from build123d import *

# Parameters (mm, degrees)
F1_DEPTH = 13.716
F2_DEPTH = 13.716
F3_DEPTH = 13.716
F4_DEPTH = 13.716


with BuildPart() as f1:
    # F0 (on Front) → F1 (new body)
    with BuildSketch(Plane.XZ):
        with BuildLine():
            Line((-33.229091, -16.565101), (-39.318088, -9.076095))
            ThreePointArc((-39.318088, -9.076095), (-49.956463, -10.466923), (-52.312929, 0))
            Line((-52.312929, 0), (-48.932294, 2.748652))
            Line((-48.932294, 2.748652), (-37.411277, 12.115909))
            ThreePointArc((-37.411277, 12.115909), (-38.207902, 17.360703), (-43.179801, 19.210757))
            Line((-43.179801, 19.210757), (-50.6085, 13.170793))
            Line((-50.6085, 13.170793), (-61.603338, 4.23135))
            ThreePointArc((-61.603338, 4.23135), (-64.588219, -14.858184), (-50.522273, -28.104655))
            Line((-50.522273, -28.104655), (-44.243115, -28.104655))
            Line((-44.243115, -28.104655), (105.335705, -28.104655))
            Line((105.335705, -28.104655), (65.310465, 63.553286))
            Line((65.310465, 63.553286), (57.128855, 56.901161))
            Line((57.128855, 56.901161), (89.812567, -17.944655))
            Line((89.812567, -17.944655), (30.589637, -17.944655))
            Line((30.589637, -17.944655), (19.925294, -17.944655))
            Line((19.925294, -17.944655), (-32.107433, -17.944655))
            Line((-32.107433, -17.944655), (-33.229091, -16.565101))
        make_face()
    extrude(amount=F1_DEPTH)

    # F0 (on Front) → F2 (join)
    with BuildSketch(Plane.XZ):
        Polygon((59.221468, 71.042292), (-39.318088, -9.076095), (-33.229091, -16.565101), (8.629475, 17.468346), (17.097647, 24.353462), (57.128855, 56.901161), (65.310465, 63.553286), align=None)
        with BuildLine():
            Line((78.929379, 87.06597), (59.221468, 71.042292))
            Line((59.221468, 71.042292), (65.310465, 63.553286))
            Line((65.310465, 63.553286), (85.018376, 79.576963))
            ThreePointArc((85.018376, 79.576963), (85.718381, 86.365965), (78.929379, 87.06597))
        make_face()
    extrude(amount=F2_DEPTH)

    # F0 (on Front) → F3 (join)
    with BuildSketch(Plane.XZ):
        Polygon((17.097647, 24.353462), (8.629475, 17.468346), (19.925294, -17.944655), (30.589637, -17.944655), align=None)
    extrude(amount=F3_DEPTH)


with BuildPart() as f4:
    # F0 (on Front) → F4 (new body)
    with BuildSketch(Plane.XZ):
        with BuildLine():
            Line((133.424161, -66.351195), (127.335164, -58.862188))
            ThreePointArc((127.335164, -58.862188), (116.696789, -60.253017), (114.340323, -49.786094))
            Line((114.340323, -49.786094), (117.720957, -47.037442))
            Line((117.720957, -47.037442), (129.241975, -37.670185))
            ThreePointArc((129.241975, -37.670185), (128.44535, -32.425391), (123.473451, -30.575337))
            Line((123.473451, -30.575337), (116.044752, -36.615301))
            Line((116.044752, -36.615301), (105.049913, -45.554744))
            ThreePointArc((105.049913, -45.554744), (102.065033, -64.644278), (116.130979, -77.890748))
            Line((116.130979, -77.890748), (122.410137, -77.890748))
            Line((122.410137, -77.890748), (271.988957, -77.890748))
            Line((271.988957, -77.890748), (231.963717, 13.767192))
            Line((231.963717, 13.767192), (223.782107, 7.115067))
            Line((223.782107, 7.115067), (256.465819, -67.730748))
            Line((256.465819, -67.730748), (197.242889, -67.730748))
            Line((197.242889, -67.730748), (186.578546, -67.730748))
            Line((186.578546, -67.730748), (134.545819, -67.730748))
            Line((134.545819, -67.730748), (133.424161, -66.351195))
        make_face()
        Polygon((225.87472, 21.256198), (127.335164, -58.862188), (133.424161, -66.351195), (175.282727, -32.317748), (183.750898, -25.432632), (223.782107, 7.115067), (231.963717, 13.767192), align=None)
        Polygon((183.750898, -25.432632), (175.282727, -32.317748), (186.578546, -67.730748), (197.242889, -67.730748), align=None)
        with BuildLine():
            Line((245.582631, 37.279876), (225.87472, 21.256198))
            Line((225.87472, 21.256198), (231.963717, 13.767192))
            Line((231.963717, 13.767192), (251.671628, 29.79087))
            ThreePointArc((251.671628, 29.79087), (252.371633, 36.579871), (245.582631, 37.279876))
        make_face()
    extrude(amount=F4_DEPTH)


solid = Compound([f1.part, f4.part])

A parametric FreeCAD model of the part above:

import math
import FreeCAD as App
import Part
import Sketcher

V = App.Vector
Q = App.Units.Quantity

doc = App.newDocument("Part")
body = doc.addObject("PartDesign::Body", "Body")

# Sketch on XZ plane
sketch1 = doc.addObject("Sketcher::SketchObject", "Sketch")
body.addObject(sketch1)
sketch1.AttachmentSupport = (doc.XZ_Plane, [""])
sketch1.MapMode = "FlatFace"
sketch1.addGeometry([
    Part.LineSegment(V(-33.229091, -16.565101, 0), V(-39.318088, -9.076095, 0)),  # 0
    Part.ArcOfCircle(Part.Circle(V(-45.399376, -3.942243, 0), V(0, 0, 1), 7.958549), math.radians(150.30737), math.radians(319.828782)),  # 1
    Part.LineSegment(V(-52.312929, 0, 0), V(-48.932294, 2.748652, 0)),  # 2
    Part.LineSegment(V(-48.932294, 2.748652, 0), V(-37.411277, 12.115909, 0)),  # 3
    Part.ArcOfCircle(Part.Circle(V(-42.265707, 14.061472, 0), V(0, 0, 1), 5.22979), math.radians(-21.839974), math.radians(100.066208)),  # 4
    Part.LineSegment(V(-43.179801, 19.210757, 0), V(-50.6085, 13.170793, 0)),  # 5
    Part.LineSegment(V(-50.6085, 13.170793, 0), V(-61.603338, 4.23135, 0)),  # 6
    Part.ArcOfCircle(Part.Circle(V(-44.994625, -8.143753, 0), V(0, 0, 1), 20.712134), math.radians(143.310314), math.radians(254.521326)),  # 7
    Part.LineSegment(V(-50.522273, -28.104655, 0), V(105.335705, -28.104655, 0)),  # 8
    Part.LineSegment(V(105.335705, -28.104655, 0), V(65.310465, 63.553286, 0)),  # 9
    Part.LineSegment(V(65.310465, 63.553286, 0), V(57.128855, 56.901161, 0)),  # 10
    Part.LineSegment(V(57.128855, 56.901161, 0), V(89.812567, -17.944655, 0)),  # 11
    Part.LineSegment(V(89.812567, -17.944655, 0), V(-32.107433, -17.944655, 0)),  # 12
    Part.LineSegment(V(-32.107433, -17.944655, 0), V(-33.229091, -16.565101, 0)),  # 13
], False)
sketch1.addConstraint([
    Sketcher.Constraint("Coincident", 0, 2, 1, 2),
    Sketcher.Constraint("Coincident", 1, 1, 2, 1),
    Sketcher.Constraint("Coincident", 2, 2, 3, 1),
    Sketcher.Constraint("Coincident", 3, 2, 4, 1),
    Sketcher.Constraint("Coincident", 4, 2, 5, 1),
    Sketcher.Constraint("Coincident", 5, 2, 6, 1),
    Sketcher.Constraint("Coincident", 6, 2, 7, 1),
    Sketcher.Constraint("Coincident", 7, 2, 8, 1),
    Sketcher.Constraint("Coincident", 8, 2, 9, 1),
    Sketcher.Constraint("Coincident", 9, 2, 10, 1),
    Sketcher.Constraint("Coincident", 10, 2, 11, 1),
    Sketcher.Constraint("Coincident", 11, 2, 12, 1),
    Sketcher.Constraint("Coincident", 12, 2, 13, 1),
    Sketcher.Constraint("Coincident", 13, 2, 0, 1),
    Sketcher.Constraint("Horizontal", 8),
    Sketcher.Constraint("Horizontal", 12),
    Sketcher.Constraint("PointOnObject", 1, 1, -1),
    Sketcher.Constraint("Perpendicular", 0, 2),
    Sketcher.Constraint("Parallel", 2, 3),
    Sketcher.Constraint("Parallel", 3, 5),
    Sketcher.Constraint("Parallel", 5, 6),
    Sketcher.Constraint("Parallel", 6, 10),
    Sketcher.Constraint("Parallel", 9, 11),
    Sketcher.Constraint("Perpendicular", 10, 13),
    Sketcher.Constraint("DistanceX", 12, 2, 12, 1, Q("4.8 in")),
    Sketcher.Constraint("DistanceY", 8, 2, 11, 2, Q("0.4 in")),
    Sketcher.Constraint("Distance", 0, Q("0.38 in")),
    Sketcher.Constraint("Distance", 13, Q("0.07 in")),
    Sketcher.Constraint("Radius", 1, Q("7.958549 mm")),
    Sketcher.Constraint("Radius", 4, Q("5.22979 mm")),
    Sketcher.Constraint("Radius", 7, Q("20.712134 mm")),
    Sketcher.Constraint("DistanceX", 8, 1, 8, 2, Q("155.857978 mm")),
    Sketcher.Constraint("DistanceX", 4, 2, -1, 1, Q("43.179801 mm")),
    Sketcher.Constraint("DistanceX", 5, 2, -1, 1, Q("50.6085 mm")),
    Sketcher.Constraint("DistanceY", 13, 2, -1, 1, Q("16.565101 mm")),
    Sketcher.Constraint("DistanceX", 1, 3, 3, 2, Q("7.988099 mm")),
    Sketcher.Constraint("DistanceY", 1, 3, 4, 2, Q("23.153 mm")),
    Sketcher.Constraint("DistanceY", 2, 2, 6, 2, Q("1.482698 mm")),
    Sketcher.Constraint("Distance", 2, Q("4.357038 mm")),
    Sketcher.Constraint("Distance", 9, Q("100.015989 mm")),
    Sketcher.Constraint("Distance", 11, Q("81.67081 mm")),
    Sketcher.Constraint("DistanceX", 0, 2, -1, 1, Q("39.318088 mm")),
    Sketcher.Constraint("DistanceX", 1, 1, -1, 1, Q("52.312929 mm")),
    Sketcher.Constraint("DistanceY", -1, 1, 2, 2, Q("2.748652 mm")),
    Sketcher.Constraint("DistanceY", -1, 1, 10, 2, Q("56.901161 mm")),
])
pad1 = doc.addObject("PartDesign::Pad", "Pad")
body.addObject(pad1)
pad1.Profile = sketch1
pad1.Length = Q("0.54 in")

# Sketch on XZ plane
sketch2 = doc.addObject("Sketcher::SketchObject", "Sketch001")
body.addObject(sketch2)
sketch2.AttachmentSupport = (doc.XZ_Plane, [""])
sketch2.MapMode = "FlatFace"
sketch2.addGeometry([
    Part.LineSegment(V(59.221468, 71.042292, 0), V(-39.318088, -9.076095, 0)),  # 0
    Part.LineSegment(V(-39.318088, -9.076095, 0), V(-33.229091, -16.565101, 0)),  # 1
    Part.LineSegment(V(-33.229091, -16.565101, 0), V(8.629475, 17.468346, 0)),  # 2
    Part.LineSegment(V(8.629475, 17.468346, 0), V(17.097647, 24.353462, 0)),  # 3
    Part.LineSegment(V(17.097647, 24.353462, 0), V(57.128855, 56.901161, 0)),  # 4
    Part.LineSegment(V(57.128855, 56.901161, 0), V(65.310465, 63.553286, 0)),  # 5
    Part.LineSegment(V(65.310465, 63.553286, 0), V(85.018376, 79.576963, 0)),  # 6
    Part.ArcOfCircle(Part.Circle(V(81.973878, 83.321466, 0), V(0, 0, 1), 4.826), math.radians(-50.886889), math.radians(129.113111)),  # 7
    Part.LineSegment(V(78.929379, 87.06597, 0), V(59.221468, 71.042292, 0)),  # 8
], False)
sketch2.addConstraint([
    Sketcher.Constraint("Coincident", 0, 2, 1, 1),
    Sketcher.Constraint("Coincident", 1, 2, 2, 1),
    Sketcher.Constraint("Coincident", 2, 2, 3, 1),
    Sketcher.Constraint("Coincident", 3, 2, 4, 1),
    Sketcher.Constraint("Coincident", 4, 2, 5, 1),
    Sketcher.Constraint("Coincident", 5, 2, 6, 1),
    Sketcher.Constraint("Tangent", 6, 2, 7, 1),
    Sketcher.Constraint("Tangent", 7, 2, 8, 1),
    Sketcher.Constraint("Coincident", 8, 2, 0, 1),
    Sketcher.Constraint("Perpendicular", 0, 1),
    Sketcher.Constraint("Perpendicular", 1, 2),
    Sketcher.Constraint("Parallel", 2, 3),
    Sketcher.Constraint("Parallel", 3, 4),
    Sketcher.Constraint("Parallel", 4, 5),
    Sketcher.Constraint("Parallel", 5, 6),
    Sketcher.Constraint("Parallel", 6, 8),
    Sketcher.Constraint("Equal", 6, 8),
    Sketcher.Constraint("Radius", 7, Q("0.19 in")),
    Sketcher.Constraint("Distance", 0, Q("5 in")),
    Sketcher.Constraint("Distance", 6, Q("1 in")),
    Sketcher.Constraint("DistanceY", 3, 2, 5, 2, Q("1.5433002 in")),
    Sketcher.Constraint("DistanceY", 1, 2, -1, 1, Q("16.565101 mm")),
    Sketcher.Constraint("DistanceY", 3, 2, 4, 2, Q("32.547699 mm")),
    Sketcher.Constraint("DistanceX", 7, 3, 6, 2, Q("3.044499 mm")),
    Sketcher.Constraint("DistanceX", 2, 2, 6, 2, Q("76.388901 mm")),
    Sketcher.Constraint("DistanceX", 0, 2, -1, 1, Q("39.318088 mm")),
])
pad2 = doc.addObject("PartDesign::Pad", "Pad001")
body.addObject(pad2)
pad2.Profile = sketch2
pad2.Length = Q("0.54 in")

# Sketch on XZ plane
sketch3 = doc.addObject("Sketcher::SketchObject", "Sketch002")
body.addObject(sketch3)
sketch3.AttachmentSupport = (doc.XZ_Plane, [""])
sketch3.MapMode = "FlatFace"
sketch3.addGeometry([
    Part.LineSegment(V(17.097647, 24.353462, 0), V(8.629475, 17.468346, 0)),
    Part.LineSegment(V(8.629475, 17.468346, 0), V(19.925294, -17.944655, 0)),
    Part.LineSegment(V(19.925294, -17.944655, 0), V(30.589637, -17.944655, 0)),
    Part.LineSegment(V(30.589637, -17.944655, 0), V(17.097647, 24.353462, 0)),
], False)
sketch3.addConstraint([
    Sketcher.Constraint("Coincident", 0, 2, 1, 1),
    Sketcher.Constraint("Coincident", 1, 2, 2, 1),
    Sketcher.Constraint("Coincident", 2, 2, 3, 1),
    Sketcher.Constraint("Coincident", 3, 2, 0, 1),
    Sketcher.Constraint("Horizontal", 2),
    Sketcher.Constraint("Parallel", 1, 3),
    Sketcher.Constraint("Distance", 3, Q("44.397798 mm")),
    Sketcher.Constraint("DistanceY", 1, 2, 0, 2, Q("35.413001 mm")),
    Sketcher.Constraint("Distance", 0, Q("10.913971 mm")),
    Sketcher.Constraint("DistanceX", 2, 1, 2, 2, Q("10.664343 mm")),
    Sketcher.Constraint("DistanceX", -1, 1, 0, 2, Q("8.629475 mm")),
    Sketcher.Constraint("DistanceY", -1, 1, 0, 2, Q("17.468346 mm")),
])
pad3 = doc.addObject("PartDesign::Pad", "Pad002")
body.addObject(pad3)
pad3.Profile = sketch3
pad3.Length = Q("0.54 in")
body2 = doc.addObject("PartDesign::Body", "Body001")

# Sketch on XZ plane
sketch4 = doc.addObject("Sketcher::SketchObject", "Sketch003")
body2.addObject(sketch4)
sketch4.AttachmentSupport = (doc.getObject("XZ_Plane001"), [""])
sketch4.MapMode = "FlatFace"
sketch4.addGeometry([
    Part.ArcOfCircle(Part.Circle(V(121.253876, -53.728337, 0), V(0, 0, 1), 7.958548), math.radians(150.307367), math.radians(319.82879)),  # 0
    Part.LineSegment(V(114.340323, -49.786094, 0), V(117.720957, -47.037442, 0)),  # 1
    Part.LineSegment(V(117.720957, -47.037442, 0), V(129.241975, -37.670185, 0)),  # 2
    Part.ArcOfCircle(Part.Circle(V(124.387545, -35.724622, 0), V(0, 0, 1), 5.22979), math.radians(-21.839974), math.radians(100.066208)),  # 3
    Part.LineSegment(V(123.473451, -30.575337, 0), V(116.044752, -36.615301, 0)),  # 4
    Part.LineSegment(V(116.044752, -36.615301, 0), V(105.049913, -45.554744, 0)),  # 5
    Part.ArcOfCircle(Part.Circle(V(121.658626, -57.929846, 0), V(0, 0, 1), 20.712134), math.radians(143.310317), math.radians(254.521327)),  # 6
    Part.LineSegment(V(116.130979, -77.890748, 0), V(271.988957, -77.890748, 0)),  # 7
    Part.LineSegment(V(271.988957, -77.890748, 0), V(231.963717, 13.767192, 0)),  # 8
    Part.LineSegment(V(231.963717, 13.767192, 0), V(251.671628, 29.79087, 0)),  # 9
    Part.ArcOfCircle(Part.Circle(V(248.62713, 33.535373, 0), V(0, 0, 1), 4.826), math.radians(-50.886886), math.radians(129.113116)),  # 10
    Part.LineSegment(V(245.582631, 37.279876, 0), V(225.87472, 21.256198, 0)),  # 11
    Part.LineSegment(V(225.87472, 21.256198, 0), V(127.335164, -58.862188, 0)),  # 12
    Part.LineSegment(V(223.782107, 7.115067, 0), V(256.465819, -67.730748, 0)),  # 13
    Part.LineSegment(V(256.465819, -67.730748, 0), V(197.242889, -67.730748, 0)),  # 14
    Part.LineSegment(V(197.242889, -67.730748, 0), V(183.750898, -25.432632, 0)),  # 15
    Part.LineSegment(V(183.750898, -25.432632, 0), V(223.782107, 7.115067, 0)),  # 16
    Part.LineSegment(V(186.578546, -67.730748, 0), V(134.545819, -67.730748, 0)),  # 17
    Part.LineSegment(V(134.545819, -67.730748, 0), V(133.424161, -66.351195, 0)),  # 18
    Part.LineSegment(V(133.424161, -66.351195, 0), V(175.282727, -32.317748, 0)),  # 19
    Part.LineSegment(V(175.282727, -32.317748, 0), V(186.578546, -67.730748, 0)),  # 20
], False)
sketch4.addConstraint([
    Sketcher.Constraint("Coincident", 0, 1, 1, 1),
    Sketcher.Constraint("Coincident", 1, 2, 2, 1),
    Sketcher.Constraint("Coincident", 2, 2, 3, 1),
    Sketcher.Constraint("Coincident", 3, 2, 4, 1),
    Sketcher.Constraint("Coincident", 4, 2, 5, 1),
    Sketcher.Constraint("Coincident", 5, 2, 6, 1),
    Sketcher.Constraint("Coincident", 6, 2, 7, 1),
    Sketcher.Constraint("Coincident", 7, 2, 8, 1),
    Sketcher.Constraint("Coincident", 8, 2, 9, 1),
    Sketcher.Constraint("Coincident", 9, 2, 10, 1),
    Sketcher.Constraint("Coincident", 10, 2, 11, 1),
    Sketcher.Constraint("Coincident", 11, 2, 12, 1),
    Sketcher.Constraint("Coincident", 12, 2, 0, 2),
    Sketcher.Constraint("Coincident", 13, 2, 14, 1),
    Sketcher.Constraint("Coincident", 14, 2, 15, 1),
    Sketcher.Constraint("Coincident", 15, 2, 16, 1),
    Sketcher.Constraint("Coincident", 16, 2, 13, 1),
    Sketcher.Constraint("Coincident", 17, 2, 18, 1),
    Sketcher.Constraint("Coincident", 18, 2, 19, 1),
    Sketcher.Constraint("Coincident", 19, 2, 20, 1),
    Sketcher.Constraint("Coincident", 20, 2, 17, 1),
    Sketcher.Constraint("Horizontal", 7),
    Sketcher.Constraint("Horizontal", 14),
    Sketcher.Constraint("Horizontal", 17),
    Sketcher.Constraint("Radius", 10, Q("0.19 in")),
    Sketcher.Constraint("Distance", 9, Q("1 in")),
    Sketcher.Constraint("Distance", 11, Q("1 in")),
    Sketcher.Constraint("Distance", 12, Q("5 in")),
    Sketcher.Constraint("DistanceY", 7, 2, 13, 2, Q("0.4 in")),
    Sketcher.Constraint("DistanceY", 6, 2, 17, 2, Q("0.4 in")),
    Sketcher.Constraint("Distance", 18, Q("0.07 in")),
    Sketcher.Constraint("Radius", 0, Q("7.958548 mm")),
    Sketcher.Constraint("Radius", 3, Q("5.22979 mm")),
    Sketcher.Constraint("Radius", 6, Q("20.712134 mm")),
    Sketcher.Constraint("DistanceY", 15, 2, 8, 2, Q("1.5433002 in")),
    Sketcher.Constraint("DistanceX", 7, 1, 7, 2, Q("155.857978 mm")),
    Sketcher.Constraint("DistanceX", 14, 2, 14, 1, Q("59.22293 mm")),
    Sketcher.Constraint("DistanceY", 4, 2, -1, 1, Q("36.615301 mm")),
    Sketcher.Constraint("DistanceY", -1, 1, 11, 2, Q("21.256198 mm")),
    Sketcher.Constraint("DistanceX", -1, 1, 15, 2, Q("183.750898 mm")),
    Sketcher.Constraint("DistanceX", 0, 3, 2, 2, Q("7.988099 mm")),
    Sketcher.Constraint("DistanceY", 0, 3, 3, 2, Q("23.153 mm")),
    Sketcher.Constraint("DistanceX", 4, 2, 3, 2, Q("7.428699 mm")),
    Sketcher.Constraint("DistanceY", 6, 3, 5, 2, Q("12.375102 mm")),
    Sketcher.Constraint("DistanceX", 10, 3, 9, 2, Q("3.044498 mm")),
    Sketcher.Constraint("DistanceX", 10, 2, 10, 3, Q("3.044499 mm")),
    Sketcher.Constraint("DistanceX", 11, 2, 13, 2, Q("30.591099 mm")),
    Sketcher.Constraint("DistanceY", 14, 2, 19, 2, Q("35.413 mm")),
    Sketcher.Constraint("Distance", 13, Q("81.670809 mm")),
    Sketcher.Constraint("DistanceX", 17, 2, 17, 1, Q("52.032727 mm")),
    Sketcher.Constraint("DistanceY", 3, 3, -1, 1, Q("35.724622 mm")),
    Sketcher.Constraint("DistanceX", -1, 1, 10, 3, Q("248.62713 mm")),
    Sketcher.Constraint("DistanceX", -1, 1, 3, 2, Q("123.473451 mm")),
    Sketcher.Constraint("DistanceX", -1, 1, 6, 2, Q("116.130979 mm")),
    Sketcher.Constraint("DistanceY", 6, 2, -1, 1, Q("77.890748 mm")),
    Sketcher.Constraint("DistanceY", -1, 1, 9, 2, Q("29.79087 mm")),
    Sketcher.Constraint("DistanceY", 12, 2, -1, 1, Q("58.862188 mm")),
    Sketcher.Constraint("DistanceX", -1, 1, 17, 2, Q("134.545819 mm")),
    Sketcher.Constraint("DistanceX", -1, 1, 18, 2, Q("133.424161 mm")),
    Sketcher.Constraint("DistanceX", 0, 3, 3, 3, Q("3.133669 mm")),
    Sketcher.Constraint("DistanceX", 0, 3, 6, 3, Q("0.404751 mm")),
    Sketcher.Constraint("DistanceY", 6, 3, 0, 1, Q("8.143752 mm")),
    Sketcher.Constraint("DistanceY", 0, 1, 1, 2, Q("2.748652 mm")),
    Sketcher.Constraint("DistanceX", 1, 2, 0, 3, Q("3.532919 mm")),
    Sketcher.Constraint("DistanceY", 8, 2, 10, 3, Q("19.768181 mm")),
    Sketcher.Constraint("DistanceX", 16, 2, 8, 2, Q("8.18161 mm")),
    Sketcher.Constraint("DistanceX", 19, 2, 15, 2, Q("8.468171 mm")),
])
pad4 = doc.addObject("PartDesign::Pad", "Pad003")
body2.addObject(pad4)
pad4.Profile = sketch4
pad4.Length = Q("0.54 in")

doc.recompute()
